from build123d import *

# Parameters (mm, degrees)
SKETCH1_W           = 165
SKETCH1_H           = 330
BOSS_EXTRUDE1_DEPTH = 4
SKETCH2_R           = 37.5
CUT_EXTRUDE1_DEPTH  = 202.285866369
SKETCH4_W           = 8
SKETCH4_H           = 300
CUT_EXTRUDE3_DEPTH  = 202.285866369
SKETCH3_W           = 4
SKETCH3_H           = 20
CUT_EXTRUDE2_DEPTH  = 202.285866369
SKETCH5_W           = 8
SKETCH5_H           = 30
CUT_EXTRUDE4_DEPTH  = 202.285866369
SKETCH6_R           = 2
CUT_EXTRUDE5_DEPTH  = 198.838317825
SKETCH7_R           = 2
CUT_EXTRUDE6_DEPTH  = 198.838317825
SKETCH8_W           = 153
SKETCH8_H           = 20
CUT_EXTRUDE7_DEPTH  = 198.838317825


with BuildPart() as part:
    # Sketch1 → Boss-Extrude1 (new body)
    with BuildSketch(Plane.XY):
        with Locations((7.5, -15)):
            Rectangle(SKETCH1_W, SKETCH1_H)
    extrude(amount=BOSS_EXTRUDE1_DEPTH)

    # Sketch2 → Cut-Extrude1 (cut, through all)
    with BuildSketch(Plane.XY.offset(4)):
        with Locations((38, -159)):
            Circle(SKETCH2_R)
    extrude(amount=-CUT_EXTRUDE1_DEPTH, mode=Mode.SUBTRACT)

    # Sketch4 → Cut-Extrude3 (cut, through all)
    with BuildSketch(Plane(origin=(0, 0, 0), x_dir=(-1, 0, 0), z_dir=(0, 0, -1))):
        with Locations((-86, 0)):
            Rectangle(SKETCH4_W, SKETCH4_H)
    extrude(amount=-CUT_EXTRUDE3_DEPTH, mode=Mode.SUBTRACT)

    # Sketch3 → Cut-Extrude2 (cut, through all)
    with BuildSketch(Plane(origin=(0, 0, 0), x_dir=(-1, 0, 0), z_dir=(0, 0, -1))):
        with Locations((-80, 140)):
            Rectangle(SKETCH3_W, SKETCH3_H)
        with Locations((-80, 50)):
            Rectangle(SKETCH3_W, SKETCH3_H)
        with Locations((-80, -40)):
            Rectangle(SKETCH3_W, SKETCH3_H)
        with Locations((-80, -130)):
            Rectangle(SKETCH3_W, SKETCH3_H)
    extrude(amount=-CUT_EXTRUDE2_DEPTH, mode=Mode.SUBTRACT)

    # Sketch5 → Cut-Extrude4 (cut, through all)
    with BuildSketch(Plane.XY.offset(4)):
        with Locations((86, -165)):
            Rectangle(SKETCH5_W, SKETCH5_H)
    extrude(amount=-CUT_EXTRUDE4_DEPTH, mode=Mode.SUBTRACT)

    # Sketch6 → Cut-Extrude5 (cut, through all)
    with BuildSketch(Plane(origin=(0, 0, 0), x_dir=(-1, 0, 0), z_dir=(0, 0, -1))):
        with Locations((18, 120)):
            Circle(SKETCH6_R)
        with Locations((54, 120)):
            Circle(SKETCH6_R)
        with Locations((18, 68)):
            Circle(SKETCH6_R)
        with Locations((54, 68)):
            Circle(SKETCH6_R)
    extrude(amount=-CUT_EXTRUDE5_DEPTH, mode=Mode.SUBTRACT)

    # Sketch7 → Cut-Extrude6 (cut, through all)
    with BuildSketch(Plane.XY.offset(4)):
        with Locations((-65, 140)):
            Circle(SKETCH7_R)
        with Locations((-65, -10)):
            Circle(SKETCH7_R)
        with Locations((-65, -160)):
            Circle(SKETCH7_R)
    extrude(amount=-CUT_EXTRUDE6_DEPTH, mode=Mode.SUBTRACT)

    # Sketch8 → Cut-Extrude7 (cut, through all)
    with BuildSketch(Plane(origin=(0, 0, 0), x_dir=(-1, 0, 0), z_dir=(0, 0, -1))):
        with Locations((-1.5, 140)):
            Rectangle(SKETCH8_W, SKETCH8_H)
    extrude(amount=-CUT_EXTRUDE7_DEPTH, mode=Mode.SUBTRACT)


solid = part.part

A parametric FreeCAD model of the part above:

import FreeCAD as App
import Part
import Sketcher

V = App.Vector
Q = App.Units.Quantity


def add_polygon(sketch, points):
    """Adds a closed chain of lines whose ends are joined by coincident constraints."""
    first, n = sketch.GeometryCount, len(points)
    for a, b in zip(points, points[1:] + points[:1]):
        sketch.addGeometry(Part.LineSegment(App.Vector(*a, 0), App.Vector(*b, 0)), False)
    for i in range(n):
        sketch.addConstraint(Sketcher.Constraint("Coincident", first + i, 2, first + (i + 1) % n, 1))

doc = App.newDocument("Part")
body = doc.addObject("PartDesign::Body", "Body")

sketch1 = body.newObject("Sketcher::SketchObject", "Sketch")
sketch1.AttachmentSupport = (doc.getObject("XY_Plane"), [""])
sketch1.MapMode = "FlatFace"
add_polygon(sketch1, [(-75, 150), (-75, -180), (90, -180), (90, 150)])
sketch1.addConstraint([
    Sketcher.Constraint("Vertical", 0),
    Sketcher.Constraint("Horizontal", 1),
    Sketcher.Constraint("Vertical", 2),
    Sketcher.Constraint("Horizontal", 3),
    Sketcher.Constraint("DistanceX", 1, 1, 1, 2, Q("165 mm")),
    Sketcher.Constraint("DistanceY", 0, 2, 0, 1, Q("330 mm")),
    Sketcher.Constraint("DistanceX", 0, 2, -1, 1, Q("75 mm")),
    Sketcher.Constraint("DistanceY", 0, 2, -1, 1, Q("180 mm")),
])
pad1 = body.newObject("PartDesign::Pad", "Pad")
pad1.Profile = sketch1
pad1.Length = 4

sketch2 = body.newObject("Sketcher::SketchObject", "Sketch001")
sketch2.AttachmentSupport = (doc.getObject("XY_Plane"), [""])
sketch2.MapMode = "FlatFace"
sketch2.AttachmentOffset = App.Placement(V(0, 0, 4), App.Rotation())
sketch2.addGeometry(Part.Circle(V(38, -159, 0), V(0, 0, 1), 37.5), False)
sketch2.addConstraint([
    Sketcher.Constraint("Diameter", 0, Q("75 mm")),
    Sketcher.Constraint("DistanceX", -1, 1, 0, 3, Q("38 mm")),
    Sketcher.Constraint("DistanceY", 0, 3, -1, 1, Q("159 mm")),
])
pocket1 = body.newObject("PartDesign::Pocket", "Pocket")
pocket1.Profile = sketch2
pocket1.Type = "ThroughAll"

sketch3 = body.newObject("Sketcher::SketchObject", "Sketch002")
sketch3.AttachmentSupport = (doc.getObject("XY_Plane"), [""])
sketch3.MapMode = "FlatFace"
add_polygon(sketch3, [(90, 150), (90, -150), (82, -150), (82, 150)])
sketch3.addConstraint([
    Sketcher.Constraint("Vertical", 0),
    Sketcher.Constraint("Horizontal", 1),
    Sketcher.Constraint("Vertical", 2),
    Sketcher.Constraint("Horizontal", 3),
    Sketcher.Constraint("DistanceX", 1, 2, 1, 1, Q("8 mm")),
    Sketcher.Constraint("DistanceY", 0, 2, 0, 1, Q("300 mm")),
    Sketcher.Constraint("DistanceX", -1, 1, 0, 2, Q("90 mm")),
    Sketcher.Constraint("DistanceY", 0, 2, -1, 1, Q("150 mm")),
])
pocket2 = body.newObject("PartDesign::Pocket", "Pocket001")
pocket2.Profile = sketch3
pocket2.Type = "ThroughAll"
pocket2.Reversed = True

sketch4 = body.newObject("Sketcher::SketchObject", "Sketch003")
sketch4.AttachmentSupport = (doc.getObject("XY_Plane"), [""])
sketch4.MapMode = "FlatFace"
add_polygon(sketch4, [(82, 150), (82, 130), (78, 130), (78, 150)])
add_polygon(sketch4, [(82, 60), (82, 40), (78, 40), (78, 60)])
add_polygon(sketch4, [(82, -30), (82, -50), (78, -50), (78, -30)])
add_polygon(sketch4, [(82, -120), (82, -140), (78, -140), (78, -120)])
sketch4.addConstraint([
    Sketcher.Constraint("Vertical", 0),
    Sketcher.Constraint("Horizontal", 1),
    Sketcher.Constraint("Vertical", 2),
    Sketcher.Constraint("Horizontal", 3),
    Sketcher.Constraint("Vertical", 4),
    Sketcher.Constraint("Horizontal", 5),
    Sketcher.Constraint("Vertical", 6),
    Sketcher.Constraint("Horizontal", 7),
    Sketcher.Constraint("Vertical", 8),
    Sketcher.Constraint("Horizontal", 9),
    Sketcher.Constraint("Vertical", 10),
    Sketcher.Constraint("Horizontal", 11),
    Sketcher.Constraint("Vertical", 12),
    Sketcher.Constraint("Horizontal", 13),
    Sketcher.Constraint("Vertical", 14),
    Sketcher.Constraint("Horizontal", 15),
    Sketcher.Constraint("Vertical", 3, 2, 4, 2),
    Sketcher.Constraint("Vertical", 2, 2, 5, 2),
    Sketcher.Constraint("Vertical", 7, 2, 8, 2),
    Sketcher.Constraint("Vertical", 6, 2, 9, 2),
    Sketcher.Constraint("Vertical", 11, 2, 12, 2),
    Sketcher.Constraint("Vertical", 10, 2, 13, 2),
    Sketcher.Constraint("Equal", 2, 4),
    Sketcher.Constraint("Equal", 6, 8),
    Sketcher.Constraint("Equal", 10, 12),
    Sketcher.Constraint("DistanceX", 1, 2, 1, 1, Q("4 mm")),
    Sketcher.Constraint("DistanceY", 0, 2, 0, 1, Q("20 mm")),
    Sketcher.Constraint("DistanceX", -1, 1, 0, 2, Q("82 mm")),
    Sketcher.Constraint("DistanceY", -1, 1, 0, 2, Q("130 mm")),
    Sketcher.Constraint("DistanceY", -1, 1, 4, 2, Q("40 mm")),
    Sketcher.Constraint("DistanceY", 8, 2, -1, 1, Q("50 mm")),
    Sketcher.Constraint("DistanceY", 12, 2, -1, 1, Q("140 mm")),
])
pocket3 = body.newObject("PartDesign::Pocket", "Pocket002")
pocket3.Profile = sketch4
pocket3.Type = "ThroughAll"
pocket3.Reversed = True

sketch5 = body.newObject("Sketcher::SketchObject", "Sketch004")
sketch5.AttachmentSupport = (doc.getObject("XY_Plane"), [""])
sketch5.MapMode = "FlatFace"
sketch5.AttachmentOffset = App.Placement(V(0, 0, 4), App.Rotation())
add_polygon(sketch5, [(82, -150), (82, -180), (90, -180), (90, -150)])
sketch5.addConstraint([
    Sketcher.Constraint("Vertical", 0),
    Sketcher.Constraint("Horizontal", 1),
    Sketcher.Constraint("Vertical", 2),
    Sketcher.Constraint("Horizontal", 3),
    Sketcher.Constraint("DistanceX", 1, 1, 1, 2, Q("8 mm")),
    Sketcher.Constraint("DistanceY", 0, 2, 0, 1, Q("30 mm")),
    Sketcher.Constraint("DistanceX", -1, 1, 0, 2, Q("82 mm")),
    Sketcher.Constraint("DistanceY", 0, 2, -1, 1, Q("180 mm")),
])
pocket4 = body.newObject("PartDesign::Pocket", "Pocket003")
pocket4.Profile = sketch5
pocket4.Type = "ThroughAll"

sketch6 = body.newObject("Sketcher::SketchObject", "Sketch005")
sketch6.AttachmentSupport = (doc.getObject("XY_Plane"), [""])
sketch6.MapMode = "FlatFace"
sketch6.addGeometry([
    Part.Circle(V(-18, 120, 0), V(0, 0, 1), 2),
    Part.Circle(V(-54, 120, 0), V(0, 0, 1), 2),
    Part.Circle(V(-18, 68, 0), V(0, 0, 1), 2),
    Part.Circle(V(-54, 68, 0), V(0, 0, 1), 2),
], False)
sketch6.addConstraint([
    Sketcher.Constraint("Equal", 0, 1),
    Sketcher.Constraint("Equal", 1, 2),
    Sketcher.Constraint("Equal", 2, 3),
    Sketcher.Constraint("Horizontal", 0, 3, 1, 3),
    Sketcher.Constraint("Horizontal", 2, 3, 3, 3),
    Sketcher.Constraint("Vertical", 0, 3, 2, 3),
    Sketcher.Constraint("Vertical", 1, 3, 3, 3),
    Sketcher.Constraint("Diameter", 0, Q("4 mm")),
    Sketcher.Constraint("DistanceX", 0, 3, -1, 1, Q("18 mm")),
    Sketcher.Constraint("DistanceY", -1, 1, 0, 3, Q("120 mm")),
    Sketcher.Constraint("DistanceX", 1, 3, -1, 1, Q("54 mm")),
    Sketcher.Constraint("DistanceY", -1, 1, 2, 3, Q("68 mm")),
])
pocket5 = body.newObject("PartDesign::Pocket", "Pocket004")
pocket5.Profile = sketch6
pocket5.Type = "ThroughAll"
pocket5.Reversed = True

sketch7 = body.newObject("Sketcher::SketchObject", "Sketch006")
sketch7.AttachmentSupport = (doc.getObject("XY_Plane"), [""])
sketch7.MapMode = "FlatFace"
sketch7.AttachmentOffset = App.Placement(V(0, 0, 4), App.Rotation())
sketch7.addGeometry([
    Part.Circle(V(-65, 140, 0), V(0, 0, 1), 2),
    Part.Circle(V(-65, -10, 0), V(0, 0, 1), 2),
    Part.Circle(V(-65, -160, 0), V(0, 0, 1), 2),
], False)
sketch7.addConstraint([
    Sketcher.Constraint("Equal", 0, 1),
    Sketcher.Constraint("Equal", 1, 2),
    Sketcher.Constraint("Vertical", 0, 3, 1, 3),
    Sketcher.Constraint("Vertical", 1, 3, 2, 3),
    Sketcher.Constraint("Diameter", 0, Q("4 mm")),
    Sketcher.Constraint("DistanceX", 0, 3, -1, 1, Q("65 mm")),
    Sketcher.Constraint("DistanceY", -1, 1, 0, 3, Q("140 mm")),
    Sketcher.Constraint("DistanceY", 1, 3, -1, 1, Q("10 mm")),
    Sketcher.Constraint("DistanceY", 2, 3, -1, 1, Q("160 mm")),
])
pocket6 = body.newObject("PartDesign::Pocket", "Pocket005")
pocket6.Profile = sketch7
pocket6.Type = "ThroughAll"

sketch8 = body.newObject("Sketcher::SketchObject", "Sketch007")
sketch8.AttachmentSupport = (doc.getObject("XY_Plane"), [""])
sketch8.MapMode = "FlatFace"
add_polygon(sketch8, [(78, 150), (78, 130), (-75, 130), (-75, 150)])
sketch8.addConstraint([
    Sketcher.Constraint("Vertical", 0),
    Sketcher.Constraint("Horizontal", 1),
    Sketcher.Constraint("Vertical", 2),
    Sketcher.Constraint("Horizontal", 3),
    Sketcher.Constraint("DistanceX", 1, 2, 1, 1, Q("153 mm")),
    Sketcher.Constraint("DistanceY", 0, 2, 0, 1, Q("20 mm")),
    Sketcher.Constraint("DistanceX", -1, 1, 0, 2, Q("78 mm")),
    Sketcher.Constraint("DistanceY", -1, 1, 0, 2, Q("130 mm")),
])
pocket7 = body.newObject("PartDesign::Pocket", "Pocket006")
pocket7.Profile = sketch8
pocket7.Type = "ThroughAll"
pocket7.Reversed = True

doc.recompute()
